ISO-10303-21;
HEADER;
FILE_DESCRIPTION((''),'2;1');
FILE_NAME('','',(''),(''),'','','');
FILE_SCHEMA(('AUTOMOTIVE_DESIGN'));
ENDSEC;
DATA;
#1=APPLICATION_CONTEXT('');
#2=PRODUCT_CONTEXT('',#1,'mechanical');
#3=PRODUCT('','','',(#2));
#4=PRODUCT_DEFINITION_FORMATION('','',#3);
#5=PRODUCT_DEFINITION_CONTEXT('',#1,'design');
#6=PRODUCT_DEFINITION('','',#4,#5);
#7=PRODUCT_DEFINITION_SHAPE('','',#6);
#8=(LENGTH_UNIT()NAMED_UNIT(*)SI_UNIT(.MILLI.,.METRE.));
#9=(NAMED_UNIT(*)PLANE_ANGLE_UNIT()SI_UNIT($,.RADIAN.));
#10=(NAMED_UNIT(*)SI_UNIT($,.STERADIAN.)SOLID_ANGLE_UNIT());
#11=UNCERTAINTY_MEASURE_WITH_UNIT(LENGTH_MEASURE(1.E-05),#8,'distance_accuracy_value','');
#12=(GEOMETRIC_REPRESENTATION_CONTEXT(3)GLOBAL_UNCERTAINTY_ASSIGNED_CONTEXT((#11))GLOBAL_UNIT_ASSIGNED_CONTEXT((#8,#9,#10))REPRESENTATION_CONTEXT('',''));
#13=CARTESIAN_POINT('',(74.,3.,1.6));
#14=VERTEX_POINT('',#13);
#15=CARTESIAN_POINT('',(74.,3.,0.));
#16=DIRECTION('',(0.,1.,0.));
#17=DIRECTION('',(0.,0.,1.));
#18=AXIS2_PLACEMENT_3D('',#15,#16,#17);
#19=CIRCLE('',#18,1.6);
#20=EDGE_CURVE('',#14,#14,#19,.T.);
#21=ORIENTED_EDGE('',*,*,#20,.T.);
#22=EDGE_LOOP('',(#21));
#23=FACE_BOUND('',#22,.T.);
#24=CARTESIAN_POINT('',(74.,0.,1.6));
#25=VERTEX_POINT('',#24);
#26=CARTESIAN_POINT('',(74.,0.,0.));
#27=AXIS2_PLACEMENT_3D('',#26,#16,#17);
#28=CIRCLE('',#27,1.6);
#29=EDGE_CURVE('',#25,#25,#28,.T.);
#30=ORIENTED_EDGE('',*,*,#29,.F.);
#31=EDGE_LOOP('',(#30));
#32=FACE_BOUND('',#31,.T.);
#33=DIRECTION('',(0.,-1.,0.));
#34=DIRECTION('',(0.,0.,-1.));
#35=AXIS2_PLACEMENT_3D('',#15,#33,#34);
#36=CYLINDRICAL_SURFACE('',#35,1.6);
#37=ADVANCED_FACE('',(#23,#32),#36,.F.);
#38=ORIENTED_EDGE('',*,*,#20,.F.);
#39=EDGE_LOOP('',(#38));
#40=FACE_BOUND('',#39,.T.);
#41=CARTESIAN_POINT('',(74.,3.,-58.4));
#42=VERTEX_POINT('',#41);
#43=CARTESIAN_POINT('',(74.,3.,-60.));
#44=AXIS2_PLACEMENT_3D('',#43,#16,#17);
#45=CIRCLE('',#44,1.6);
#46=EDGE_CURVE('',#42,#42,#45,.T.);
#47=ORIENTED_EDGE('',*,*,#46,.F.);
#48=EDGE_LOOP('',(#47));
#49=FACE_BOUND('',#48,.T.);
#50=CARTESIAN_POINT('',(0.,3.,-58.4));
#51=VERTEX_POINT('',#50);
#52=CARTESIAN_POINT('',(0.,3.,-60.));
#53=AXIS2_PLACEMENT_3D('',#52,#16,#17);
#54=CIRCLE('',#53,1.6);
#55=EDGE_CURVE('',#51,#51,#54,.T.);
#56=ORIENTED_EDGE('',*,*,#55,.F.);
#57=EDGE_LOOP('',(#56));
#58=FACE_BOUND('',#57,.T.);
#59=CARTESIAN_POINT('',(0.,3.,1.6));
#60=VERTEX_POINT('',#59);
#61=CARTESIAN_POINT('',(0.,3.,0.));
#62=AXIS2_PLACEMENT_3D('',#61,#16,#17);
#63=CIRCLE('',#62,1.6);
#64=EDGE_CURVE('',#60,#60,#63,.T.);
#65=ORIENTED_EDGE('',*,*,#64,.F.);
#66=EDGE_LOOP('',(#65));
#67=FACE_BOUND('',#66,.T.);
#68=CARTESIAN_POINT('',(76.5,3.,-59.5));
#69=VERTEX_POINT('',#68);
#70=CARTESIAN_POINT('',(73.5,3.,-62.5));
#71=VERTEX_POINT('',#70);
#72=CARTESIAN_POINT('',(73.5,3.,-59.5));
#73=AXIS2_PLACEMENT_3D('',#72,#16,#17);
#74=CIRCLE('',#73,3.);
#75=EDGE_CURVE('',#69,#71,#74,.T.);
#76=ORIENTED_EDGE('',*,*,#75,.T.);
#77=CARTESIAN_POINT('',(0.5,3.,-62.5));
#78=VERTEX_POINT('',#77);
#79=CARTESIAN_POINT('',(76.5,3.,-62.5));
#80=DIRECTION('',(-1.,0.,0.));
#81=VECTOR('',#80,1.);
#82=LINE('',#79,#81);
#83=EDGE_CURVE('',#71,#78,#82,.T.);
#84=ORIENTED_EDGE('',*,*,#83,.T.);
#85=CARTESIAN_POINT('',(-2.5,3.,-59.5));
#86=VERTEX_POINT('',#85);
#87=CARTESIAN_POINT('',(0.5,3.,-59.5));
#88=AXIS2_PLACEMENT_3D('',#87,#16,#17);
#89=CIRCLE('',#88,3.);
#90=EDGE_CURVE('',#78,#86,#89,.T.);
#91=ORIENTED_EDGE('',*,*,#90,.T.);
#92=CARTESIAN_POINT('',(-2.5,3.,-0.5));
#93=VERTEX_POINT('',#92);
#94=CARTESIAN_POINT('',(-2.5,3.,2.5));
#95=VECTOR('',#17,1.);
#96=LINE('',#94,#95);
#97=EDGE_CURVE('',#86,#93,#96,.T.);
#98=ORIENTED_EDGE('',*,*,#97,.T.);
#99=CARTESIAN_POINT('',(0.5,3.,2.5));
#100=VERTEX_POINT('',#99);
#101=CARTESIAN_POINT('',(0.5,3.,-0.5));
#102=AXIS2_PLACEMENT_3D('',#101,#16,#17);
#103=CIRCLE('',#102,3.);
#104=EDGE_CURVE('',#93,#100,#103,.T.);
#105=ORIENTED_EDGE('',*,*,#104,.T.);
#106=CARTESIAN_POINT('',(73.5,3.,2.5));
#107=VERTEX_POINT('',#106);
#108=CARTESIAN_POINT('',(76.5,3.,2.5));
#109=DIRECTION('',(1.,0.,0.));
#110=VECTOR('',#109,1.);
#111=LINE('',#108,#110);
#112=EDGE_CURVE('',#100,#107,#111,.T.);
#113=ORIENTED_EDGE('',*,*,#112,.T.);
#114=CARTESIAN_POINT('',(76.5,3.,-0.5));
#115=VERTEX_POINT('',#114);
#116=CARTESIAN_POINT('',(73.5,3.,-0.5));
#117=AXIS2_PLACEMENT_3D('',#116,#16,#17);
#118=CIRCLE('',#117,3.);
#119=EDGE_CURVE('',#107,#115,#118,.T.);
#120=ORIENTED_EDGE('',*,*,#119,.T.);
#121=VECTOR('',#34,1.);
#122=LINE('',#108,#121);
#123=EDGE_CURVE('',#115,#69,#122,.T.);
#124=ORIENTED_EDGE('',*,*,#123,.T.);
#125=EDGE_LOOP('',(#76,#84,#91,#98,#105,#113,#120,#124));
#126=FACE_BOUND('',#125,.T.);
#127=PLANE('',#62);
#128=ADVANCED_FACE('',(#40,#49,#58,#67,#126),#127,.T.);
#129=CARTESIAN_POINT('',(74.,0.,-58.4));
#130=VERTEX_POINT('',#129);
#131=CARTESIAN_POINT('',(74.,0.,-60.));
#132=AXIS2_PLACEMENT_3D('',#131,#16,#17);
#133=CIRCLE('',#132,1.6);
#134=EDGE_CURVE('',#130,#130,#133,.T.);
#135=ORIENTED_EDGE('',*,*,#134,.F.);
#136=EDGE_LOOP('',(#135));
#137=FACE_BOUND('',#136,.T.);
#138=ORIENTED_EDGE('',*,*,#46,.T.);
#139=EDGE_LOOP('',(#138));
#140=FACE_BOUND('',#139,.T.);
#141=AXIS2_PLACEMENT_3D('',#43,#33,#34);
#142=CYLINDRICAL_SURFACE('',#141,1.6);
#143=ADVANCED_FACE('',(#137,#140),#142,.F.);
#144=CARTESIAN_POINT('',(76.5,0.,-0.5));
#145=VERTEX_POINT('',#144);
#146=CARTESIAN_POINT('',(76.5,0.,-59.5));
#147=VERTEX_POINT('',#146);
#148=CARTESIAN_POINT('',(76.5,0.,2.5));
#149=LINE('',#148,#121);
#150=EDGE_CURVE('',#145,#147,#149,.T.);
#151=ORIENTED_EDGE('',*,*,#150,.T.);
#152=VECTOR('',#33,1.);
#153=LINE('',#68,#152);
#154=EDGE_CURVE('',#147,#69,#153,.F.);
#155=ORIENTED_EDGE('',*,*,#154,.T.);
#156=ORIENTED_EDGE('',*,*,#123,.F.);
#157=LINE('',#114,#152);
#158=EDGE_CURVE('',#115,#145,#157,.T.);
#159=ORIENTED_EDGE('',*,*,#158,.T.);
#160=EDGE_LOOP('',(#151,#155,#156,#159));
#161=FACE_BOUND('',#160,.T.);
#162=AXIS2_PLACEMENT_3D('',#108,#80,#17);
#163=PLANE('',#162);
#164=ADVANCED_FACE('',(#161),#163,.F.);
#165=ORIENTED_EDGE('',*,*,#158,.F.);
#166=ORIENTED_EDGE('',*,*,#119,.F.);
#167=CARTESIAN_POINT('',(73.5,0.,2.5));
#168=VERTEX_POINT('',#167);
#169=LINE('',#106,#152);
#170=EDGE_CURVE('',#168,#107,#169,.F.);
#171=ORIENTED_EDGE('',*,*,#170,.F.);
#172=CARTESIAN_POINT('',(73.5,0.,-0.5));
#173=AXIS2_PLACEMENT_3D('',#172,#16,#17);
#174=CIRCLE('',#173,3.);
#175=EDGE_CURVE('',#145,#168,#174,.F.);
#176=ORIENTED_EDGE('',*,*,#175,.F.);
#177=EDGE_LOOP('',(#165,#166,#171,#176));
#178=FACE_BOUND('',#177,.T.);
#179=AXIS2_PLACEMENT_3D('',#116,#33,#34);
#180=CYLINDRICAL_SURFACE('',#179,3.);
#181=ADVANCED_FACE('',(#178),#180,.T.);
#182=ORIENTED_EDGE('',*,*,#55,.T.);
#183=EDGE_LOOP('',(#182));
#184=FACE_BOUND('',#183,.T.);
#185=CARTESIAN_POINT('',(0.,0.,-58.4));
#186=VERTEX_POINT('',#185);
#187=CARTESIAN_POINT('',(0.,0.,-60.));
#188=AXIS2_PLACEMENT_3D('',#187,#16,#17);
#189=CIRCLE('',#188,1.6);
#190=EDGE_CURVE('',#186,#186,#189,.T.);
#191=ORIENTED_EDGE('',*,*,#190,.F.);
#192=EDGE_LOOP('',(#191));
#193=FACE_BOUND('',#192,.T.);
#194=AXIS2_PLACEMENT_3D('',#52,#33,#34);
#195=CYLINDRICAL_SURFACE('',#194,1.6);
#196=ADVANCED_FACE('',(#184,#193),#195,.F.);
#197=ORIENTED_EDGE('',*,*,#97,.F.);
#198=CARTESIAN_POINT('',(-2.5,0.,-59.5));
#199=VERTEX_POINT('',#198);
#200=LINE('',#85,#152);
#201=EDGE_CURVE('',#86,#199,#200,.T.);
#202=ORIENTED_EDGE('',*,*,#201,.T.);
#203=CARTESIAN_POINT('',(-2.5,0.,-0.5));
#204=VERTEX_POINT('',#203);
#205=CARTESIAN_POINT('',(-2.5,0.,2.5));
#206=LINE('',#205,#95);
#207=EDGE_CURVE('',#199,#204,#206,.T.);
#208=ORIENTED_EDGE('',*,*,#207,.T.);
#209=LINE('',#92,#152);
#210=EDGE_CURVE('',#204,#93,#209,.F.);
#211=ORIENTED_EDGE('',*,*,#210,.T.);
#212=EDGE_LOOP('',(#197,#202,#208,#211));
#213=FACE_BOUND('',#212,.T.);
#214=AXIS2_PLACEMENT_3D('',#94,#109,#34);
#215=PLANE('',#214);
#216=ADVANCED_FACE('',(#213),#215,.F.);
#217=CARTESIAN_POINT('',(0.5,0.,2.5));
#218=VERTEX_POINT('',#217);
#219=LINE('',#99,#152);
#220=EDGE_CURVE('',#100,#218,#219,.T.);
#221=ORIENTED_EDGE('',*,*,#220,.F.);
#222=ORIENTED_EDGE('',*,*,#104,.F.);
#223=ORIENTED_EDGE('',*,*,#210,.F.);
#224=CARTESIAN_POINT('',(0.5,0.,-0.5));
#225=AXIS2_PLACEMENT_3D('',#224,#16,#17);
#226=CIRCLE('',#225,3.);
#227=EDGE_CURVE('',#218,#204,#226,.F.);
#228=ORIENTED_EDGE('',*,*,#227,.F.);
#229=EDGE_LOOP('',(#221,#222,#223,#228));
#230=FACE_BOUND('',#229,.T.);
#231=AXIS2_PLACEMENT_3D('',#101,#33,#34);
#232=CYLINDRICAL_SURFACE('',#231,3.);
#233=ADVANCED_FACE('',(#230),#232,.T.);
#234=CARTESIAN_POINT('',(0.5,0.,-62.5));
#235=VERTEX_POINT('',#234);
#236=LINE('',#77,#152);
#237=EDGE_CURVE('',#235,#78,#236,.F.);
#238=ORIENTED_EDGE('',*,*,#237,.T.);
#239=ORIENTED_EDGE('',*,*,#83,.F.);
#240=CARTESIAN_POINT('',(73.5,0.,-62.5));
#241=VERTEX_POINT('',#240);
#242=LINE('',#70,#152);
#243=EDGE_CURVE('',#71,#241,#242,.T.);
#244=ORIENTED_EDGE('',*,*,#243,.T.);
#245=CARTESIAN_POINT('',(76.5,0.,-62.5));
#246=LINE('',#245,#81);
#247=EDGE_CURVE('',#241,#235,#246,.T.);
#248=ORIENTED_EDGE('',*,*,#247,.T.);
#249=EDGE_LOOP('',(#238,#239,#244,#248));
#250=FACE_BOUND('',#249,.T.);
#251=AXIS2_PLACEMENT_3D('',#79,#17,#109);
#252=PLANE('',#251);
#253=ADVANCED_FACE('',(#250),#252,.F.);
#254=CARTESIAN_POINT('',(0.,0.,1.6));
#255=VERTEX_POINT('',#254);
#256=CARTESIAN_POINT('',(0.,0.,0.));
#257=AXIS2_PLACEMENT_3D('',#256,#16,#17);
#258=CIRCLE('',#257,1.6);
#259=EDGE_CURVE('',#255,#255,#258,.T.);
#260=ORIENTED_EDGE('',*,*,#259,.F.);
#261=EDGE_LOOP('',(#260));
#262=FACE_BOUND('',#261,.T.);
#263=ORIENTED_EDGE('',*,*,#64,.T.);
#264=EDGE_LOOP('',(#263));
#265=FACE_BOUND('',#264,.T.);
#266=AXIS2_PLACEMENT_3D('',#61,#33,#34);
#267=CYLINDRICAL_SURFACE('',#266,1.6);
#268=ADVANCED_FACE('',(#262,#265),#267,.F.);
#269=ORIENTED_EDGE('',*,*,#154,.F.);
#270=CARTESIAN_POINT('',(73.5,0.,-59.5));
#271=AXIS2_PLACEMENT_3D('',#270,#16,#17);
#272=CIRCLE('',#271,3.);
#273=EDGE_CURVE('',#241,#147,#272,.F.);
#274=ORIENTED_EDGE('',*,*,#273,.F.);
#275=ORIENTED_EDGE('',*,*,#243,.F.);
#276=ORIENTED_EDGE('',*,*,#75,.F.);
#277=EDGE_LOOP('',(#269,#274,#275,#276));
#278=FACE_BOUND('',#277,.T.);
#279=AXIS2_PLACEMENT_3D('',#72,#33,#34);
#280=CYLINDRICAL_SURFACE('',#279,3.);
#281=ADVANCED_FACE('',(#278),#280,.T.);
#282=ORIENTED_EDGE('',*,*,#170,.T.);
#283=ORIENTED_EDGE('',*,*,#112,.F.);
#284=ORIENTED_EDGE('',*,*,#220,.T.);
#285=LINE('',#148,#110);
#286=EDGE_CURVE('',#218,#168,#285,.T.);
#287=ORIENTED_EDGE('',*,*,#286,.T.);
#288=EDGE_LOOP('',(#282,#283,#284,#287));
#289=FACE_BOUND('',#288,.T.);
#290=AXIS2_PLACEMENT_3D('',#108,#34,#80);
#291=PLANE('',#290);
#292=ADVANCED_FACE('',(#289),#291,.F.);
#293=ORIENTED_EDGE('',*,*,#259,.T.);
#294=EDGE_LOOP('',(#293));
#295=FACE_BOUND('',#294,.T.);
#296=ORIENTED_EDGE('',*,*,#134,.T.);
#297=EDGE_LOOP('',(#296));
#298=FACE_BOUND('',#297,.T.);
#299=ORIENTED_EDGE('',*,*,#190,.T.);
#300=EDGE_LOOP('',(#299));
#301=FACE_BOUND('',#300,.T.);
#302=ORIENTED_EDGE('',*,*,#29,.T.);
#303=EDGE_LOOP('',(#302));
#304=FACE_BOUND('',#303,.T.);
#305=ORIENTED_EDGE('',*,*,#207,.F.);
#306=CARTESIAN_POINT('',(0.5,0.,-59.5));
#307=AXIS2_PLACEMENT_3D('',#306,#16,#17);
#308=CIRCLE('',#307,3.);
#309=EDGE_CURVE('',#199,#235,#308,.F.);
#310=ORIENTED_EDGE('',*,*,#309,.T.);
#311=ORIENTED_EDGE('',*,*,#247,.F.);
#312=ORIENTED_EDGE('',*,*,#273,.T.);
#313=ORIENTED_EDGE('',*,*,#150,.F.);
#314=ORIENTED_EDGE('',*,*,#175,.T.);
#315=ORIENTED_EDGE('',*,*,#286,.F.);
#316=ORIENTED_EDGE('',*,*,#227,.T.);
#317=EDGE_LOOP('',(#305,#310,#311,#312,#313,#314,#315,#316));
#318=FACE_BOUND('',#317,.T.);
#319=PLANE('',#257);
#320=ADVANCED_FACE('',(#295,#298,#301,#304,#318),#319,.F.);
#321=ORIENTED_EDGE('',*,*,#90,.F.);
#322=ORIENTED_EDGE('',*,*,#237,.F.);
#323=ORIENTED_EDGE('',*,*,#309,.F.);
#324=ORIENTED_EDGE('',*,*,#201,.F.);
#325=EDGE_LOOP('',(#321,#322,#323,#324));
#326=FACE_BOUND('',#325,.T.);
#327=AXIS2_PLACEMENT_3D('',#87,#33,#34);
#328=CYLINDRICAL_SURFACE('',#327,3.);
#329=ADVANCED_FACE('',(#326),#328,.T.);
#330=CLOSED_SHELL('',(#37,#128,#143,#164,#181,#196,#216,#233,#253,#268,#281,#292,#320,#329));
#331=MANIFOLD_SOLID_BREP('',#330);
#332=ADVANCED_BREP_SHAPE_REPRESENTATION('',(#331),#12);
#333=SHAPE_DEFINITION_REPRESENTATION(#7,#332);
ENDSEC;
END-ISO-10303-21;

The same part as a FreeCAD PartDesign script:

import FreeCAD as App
import Part
import Sketcher
from FreeCAD import Vector
Q = App.Units.Quantity


def edges_at(feature, points):
    """Names of the edges that pass closest to the given points."""
    edges = feature.Shape.Edges
    near = lambda p: min(range(len(edges)), key=lambda i: edges[i].distToShape(Part.Vertex(*p))[0])
    return sorted({f"Edge{near(p) + 1}" for p in points})


def add_polygon(sketch, points):
    """Adds a closed chain of lines whose ends are joined by coincident constraints."""
    first, n = sketch.GeometryCount, len(points)
    for a, b in zip(points, points[1:] + points[:1]):
        sketch.addGeometry(Part.LineSegment(App.Vector(*a, 0), App.Vector(*b, 0)), False)
    for i in range(n):
        sketch.addConstraint(Sketcher.Constraint("Coincident", first + i, 2, first + (i + 1) % n, 1))

doc = App.newDocument("Part")
params = doc.addObject("Spreadsheet::Sheet", "Params")
for row, (alias, value) in enumerate([
    ("sketch1_diameter", "3.2 mm"),
    ("sketch1_width", "79 mm"),
    ("sketch1_height", "65 mm"),
    ("pad1_length", "3 mm"),
    ("fillet_radius", "3 mm"),
], start=1):
    params.set(f"A{row}", alias)
    params.set(f"B{row}", "=" + value)
    params.setAlias(f"B{row}", alias)

body = doc.addObject("PartDesign::Body", "Body")

sketch1 = doc.addObject("Sketcher::SketchObject", "Sketch")
body.addObject(sketch1)
sketch1.AttachmentSupport = (doc.XZ_Plane, [""])
sketch1.MapMode = "FlatFace"
add_polygon(sketch1, [(-2.5, -62.5), (-2.5, 2.5), (76.5, 2.5), (76.5, -62.5)])
sketch1.addGeometry(Part.Circle(Vector(0, 0, 0), Vector(0, 0, 1), 1.6), False)
sketch1.addGeometry(Part.Circle(Vector(74, 0, 0), Vector(0, 0, 1), 1.6), False)
sketch1.addGeometry(Part.Circle(Vector(0, -60, 0), Vector(0, 0, 1), 1.6), False)
sketch1.addGeometry(Part.Circle(Vector(74, -60, 0), Vector(0, 0, 1), 1.6), False)
sketch1.addConstraint([
    Sketcher.Constraint("Vertical", 0),
    Sketcher.Constraint("Horizontal", 1),
    Sketcher.Constraint("Vertical", 2),
    Sketcher.Constraint("Horizontal", 3),
    Sketcher.Constraint("Coincident", 4, 3, -1, 1),
    Sketcher.Constraint("Equal", 4, 5),
    Sketcher.Constraint("Equal", 5, 6),
    Sketcher.Constraint("Equal", 6, 7),
    Sketcher.Constraint("PointOnObject", 5, 3, -1),
    Sketcher.Constraint("PointOnObject", 6, 3, -2),
    Sketcher.Constraint("Horizontal", 6, 3, 7, 3),
    Sketcher.Constraint("Vertical", 5, 3, 7, 3),
    Sketcher.Constraint("Diameter", 4, Q("3.2 mm")),
    Sketcher.Constraint("DistanceX", 1, 1, 1, 2, Q("79 mm")),
    Sketcher.Constraint("DistanceY", 0, 1, 0, 2, Q("65 mm")),
    Sketcher.Constraint("DistanceX", -1, 1, 5, 3, Q("74 mm")),
    Sketcher.Constraint("DistanceY", 6, 3, -1, 1, Q("60 mm")),
    Sketcher.Constraint("DistanceX", 0, 2, -1, 1, Q("2.5 mm")),
    Sketcher.Constraint("DistanceY", -1, 1, 0, 2, Q("2.5 mm")),
])
sketch1.setExpression("Constraints[16]", "Params.sketch1_diameter")
sketch1.setExpression("Constraints[17]", "Params.sketch1_width")
sketch1.setExpression("Constraints[18]", "Params.sketch1_height")
pad1 = doc.addObject("PartDesign::Pad", "Pad")
body.addObject(pad1)
pad1.Profile = sketch1
pad1.setExpression("Length", "Params.pad1_length")
pad1.Reversed = True
doc.recompute()

fillet = doc.addObject("PartDesign::Fillet", "Fillet")
body.addObject(fillet)
fillet.Base = (pad1, edges_at(pad1, [
    (-2.5, 1.5, -62.5),
    (76.5, 1.5, -62.5),
    (76.5, 1.5, 2.5),
    (-2.5, 1.5, 2.5),
]))
fillet.setExpression("Radius", "Params.fillet_radius")

doc.recompute()
